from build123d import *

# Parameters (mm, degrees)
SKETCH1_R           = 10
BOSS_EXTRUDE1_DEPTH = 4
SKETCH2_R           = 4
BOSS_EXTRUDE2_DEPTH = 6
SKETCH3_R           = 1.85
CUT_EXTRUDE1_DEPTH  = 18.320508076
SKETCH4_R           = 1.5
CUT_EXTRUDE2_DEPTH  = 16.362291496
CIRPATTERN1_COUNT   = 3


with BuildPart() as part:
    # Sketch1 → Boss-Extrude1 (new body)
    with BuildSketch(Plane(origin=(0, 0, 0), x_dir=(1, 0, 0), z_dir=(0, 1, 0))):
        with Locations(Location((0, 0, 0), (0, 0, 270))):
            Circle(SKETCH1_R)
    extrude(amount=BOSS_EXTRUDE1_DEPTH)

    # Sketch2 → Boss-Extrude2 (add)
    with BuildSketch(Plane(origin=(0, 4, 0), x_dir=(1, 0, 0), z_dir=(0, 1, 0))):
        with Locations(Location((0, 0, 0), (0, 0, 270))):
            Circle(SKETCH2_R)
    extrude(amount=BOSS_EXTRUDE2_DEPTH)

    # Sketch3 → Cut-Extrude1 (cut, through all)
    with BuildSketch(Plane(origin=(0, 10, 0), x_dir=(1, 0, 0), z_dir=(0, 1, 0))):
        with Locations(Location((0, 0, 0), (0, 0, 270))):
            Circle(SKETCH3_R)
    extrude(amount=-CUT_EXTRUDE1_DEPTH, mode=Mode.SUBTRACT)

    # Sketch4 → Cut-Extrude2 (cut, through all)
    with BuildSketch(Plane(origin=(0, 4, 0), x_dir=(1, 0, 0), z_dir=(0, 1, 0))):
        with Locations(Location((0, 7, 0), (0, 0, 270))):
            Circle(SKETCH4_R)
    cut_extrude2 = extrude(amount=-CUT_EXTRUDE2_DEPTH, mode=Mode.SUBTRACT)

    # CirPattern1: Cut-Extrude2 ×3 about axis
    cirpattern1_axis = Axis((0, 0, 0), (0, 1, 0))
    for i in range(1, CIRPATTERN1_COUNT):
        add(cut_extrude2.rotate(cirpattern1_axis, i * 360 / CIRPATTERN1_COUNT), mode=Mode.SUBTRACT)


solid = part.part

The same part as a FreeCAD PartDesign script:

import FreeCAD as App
import Part
import Sketcher

V = App.Vector

doc = App.newDocument("Part")
body = doc.addObject("PartDesign::Body", "Body")

sketch1 = body.newObject("Sketcher::SketchObject", "Sketch")
sketch1.AttachmentSupport = (doc.getObject("XZ_Plane"), [""])
sketch1.MapMode = "FlatFace"
sketch1.addGeometry(Part.Circle(V(0, 0, 0), V(0, 0, 1), 10), False)
sketch1.addConstraint(Sketcher.Constraint("Coincident", 0, 3, -1, 1))
sketch1.addConstraint(Sketcher.Constraint("Diameter", 0, 20.0))
pad1 = body.newObject("PartDesign::Pad", "Pad")
pad1.Profile = sketch1
pad1.Length = 4
pad1.Reversed = True

sketch2 = body.newObject("Sketcher::SketchObject", "Sketch001")
sketch2.AttachmentSupport = (doc.getObject("XZ_Plane"), [""])
sketch2.MapMode = "FlatFace"
sketch2.AttachmentOffset = App.Placement(V(0, 0, -4), App.Rotation())
sketch2.addGeometry(Part.Circle(V(0, 0, 0), V(0, 0, 1), 4), False)
sketch2.addConstraint(Sketcher.Constraint("Coincident", 0, 3, -1, 1))
sketch2.addConstraint(Sketcher.Constraint("Diameter", 0, 8.0))
pad2 = body.newObject("PartDesign::Pad", "Pad001")
pad2.Profile = sketch2
pad2.Length = 6
pad2.Reversed = True

sketch3 = body.newObject("Sketcher::SketchObject", "Sketch002")
sketch3.AttachmentSupport = (doc.getObject("XZ_Plane"), [""])
sketch3.MapMode = "FlatFace"
sketch3.AttachmentOffset = App.Placement(V(0, 0, -10), App.Rotation())
sketch3.addGeometry(Part.Circle(V(0, 0, 0), V(0, 0, 1), 1.9), False)
sketch3.addConstraint(Sketcher.Constraint("Coincident", 0, 3, -1, 1))
sketch3.addConstraint(Sketcher.Constraint("Diameter", 0, 3.7))
pocket1 = body.newObject("PartDesign::Pocket", "Pocket")
pocket1.Profile = sketch3
pocket1.Type = "ThroughAll"
pocket1.Reversed = True

sketch4 = body.newObject("Sketcher::SketchObject", "Sketch003")
sketch4.AttachmentSupport = (doc.getObject("XZ_Plane"), [""])
sketch4.MapMode = "FlatFace"
sketch4.AttachmentOffset = App.Placement(V(0, 0, -4), App.Rotation())
sketch4.addGeometry(Part.Circle(V(0, -7, 0), V(0, 0, 1), 1.5), False)
sketch4.addConstraint(Sketcher.Constraint("PointOnObject", 0, 3, -2))
sketch4.addConstraint(Sketcher.Constraint("Diameter", 0, 3.0))
sketch4.addConstraint(Sketcher.Constraint("DistanceY", 0, 3, -1, 1, 7.0))
pocket2 = body.newObject("PartDesign::Pocket", "Pocket001")
pocket2.Profile = sketch4
pocket2.Type = "ThroughAll"
pocket2.Reversed = True
doc.recompute()

polarpattern = body.newObject("PartDesign::PolarPattern", "PolarPattern")
polarpattern.Originals = [pocket2]
polarpattern.Axis = (doc.getObject("Y_Axis"), [""])
polarpattern.Angle = 360
polarpattern.Occurrences = 3
body.Tip = polarpattern

doc.recompute()
